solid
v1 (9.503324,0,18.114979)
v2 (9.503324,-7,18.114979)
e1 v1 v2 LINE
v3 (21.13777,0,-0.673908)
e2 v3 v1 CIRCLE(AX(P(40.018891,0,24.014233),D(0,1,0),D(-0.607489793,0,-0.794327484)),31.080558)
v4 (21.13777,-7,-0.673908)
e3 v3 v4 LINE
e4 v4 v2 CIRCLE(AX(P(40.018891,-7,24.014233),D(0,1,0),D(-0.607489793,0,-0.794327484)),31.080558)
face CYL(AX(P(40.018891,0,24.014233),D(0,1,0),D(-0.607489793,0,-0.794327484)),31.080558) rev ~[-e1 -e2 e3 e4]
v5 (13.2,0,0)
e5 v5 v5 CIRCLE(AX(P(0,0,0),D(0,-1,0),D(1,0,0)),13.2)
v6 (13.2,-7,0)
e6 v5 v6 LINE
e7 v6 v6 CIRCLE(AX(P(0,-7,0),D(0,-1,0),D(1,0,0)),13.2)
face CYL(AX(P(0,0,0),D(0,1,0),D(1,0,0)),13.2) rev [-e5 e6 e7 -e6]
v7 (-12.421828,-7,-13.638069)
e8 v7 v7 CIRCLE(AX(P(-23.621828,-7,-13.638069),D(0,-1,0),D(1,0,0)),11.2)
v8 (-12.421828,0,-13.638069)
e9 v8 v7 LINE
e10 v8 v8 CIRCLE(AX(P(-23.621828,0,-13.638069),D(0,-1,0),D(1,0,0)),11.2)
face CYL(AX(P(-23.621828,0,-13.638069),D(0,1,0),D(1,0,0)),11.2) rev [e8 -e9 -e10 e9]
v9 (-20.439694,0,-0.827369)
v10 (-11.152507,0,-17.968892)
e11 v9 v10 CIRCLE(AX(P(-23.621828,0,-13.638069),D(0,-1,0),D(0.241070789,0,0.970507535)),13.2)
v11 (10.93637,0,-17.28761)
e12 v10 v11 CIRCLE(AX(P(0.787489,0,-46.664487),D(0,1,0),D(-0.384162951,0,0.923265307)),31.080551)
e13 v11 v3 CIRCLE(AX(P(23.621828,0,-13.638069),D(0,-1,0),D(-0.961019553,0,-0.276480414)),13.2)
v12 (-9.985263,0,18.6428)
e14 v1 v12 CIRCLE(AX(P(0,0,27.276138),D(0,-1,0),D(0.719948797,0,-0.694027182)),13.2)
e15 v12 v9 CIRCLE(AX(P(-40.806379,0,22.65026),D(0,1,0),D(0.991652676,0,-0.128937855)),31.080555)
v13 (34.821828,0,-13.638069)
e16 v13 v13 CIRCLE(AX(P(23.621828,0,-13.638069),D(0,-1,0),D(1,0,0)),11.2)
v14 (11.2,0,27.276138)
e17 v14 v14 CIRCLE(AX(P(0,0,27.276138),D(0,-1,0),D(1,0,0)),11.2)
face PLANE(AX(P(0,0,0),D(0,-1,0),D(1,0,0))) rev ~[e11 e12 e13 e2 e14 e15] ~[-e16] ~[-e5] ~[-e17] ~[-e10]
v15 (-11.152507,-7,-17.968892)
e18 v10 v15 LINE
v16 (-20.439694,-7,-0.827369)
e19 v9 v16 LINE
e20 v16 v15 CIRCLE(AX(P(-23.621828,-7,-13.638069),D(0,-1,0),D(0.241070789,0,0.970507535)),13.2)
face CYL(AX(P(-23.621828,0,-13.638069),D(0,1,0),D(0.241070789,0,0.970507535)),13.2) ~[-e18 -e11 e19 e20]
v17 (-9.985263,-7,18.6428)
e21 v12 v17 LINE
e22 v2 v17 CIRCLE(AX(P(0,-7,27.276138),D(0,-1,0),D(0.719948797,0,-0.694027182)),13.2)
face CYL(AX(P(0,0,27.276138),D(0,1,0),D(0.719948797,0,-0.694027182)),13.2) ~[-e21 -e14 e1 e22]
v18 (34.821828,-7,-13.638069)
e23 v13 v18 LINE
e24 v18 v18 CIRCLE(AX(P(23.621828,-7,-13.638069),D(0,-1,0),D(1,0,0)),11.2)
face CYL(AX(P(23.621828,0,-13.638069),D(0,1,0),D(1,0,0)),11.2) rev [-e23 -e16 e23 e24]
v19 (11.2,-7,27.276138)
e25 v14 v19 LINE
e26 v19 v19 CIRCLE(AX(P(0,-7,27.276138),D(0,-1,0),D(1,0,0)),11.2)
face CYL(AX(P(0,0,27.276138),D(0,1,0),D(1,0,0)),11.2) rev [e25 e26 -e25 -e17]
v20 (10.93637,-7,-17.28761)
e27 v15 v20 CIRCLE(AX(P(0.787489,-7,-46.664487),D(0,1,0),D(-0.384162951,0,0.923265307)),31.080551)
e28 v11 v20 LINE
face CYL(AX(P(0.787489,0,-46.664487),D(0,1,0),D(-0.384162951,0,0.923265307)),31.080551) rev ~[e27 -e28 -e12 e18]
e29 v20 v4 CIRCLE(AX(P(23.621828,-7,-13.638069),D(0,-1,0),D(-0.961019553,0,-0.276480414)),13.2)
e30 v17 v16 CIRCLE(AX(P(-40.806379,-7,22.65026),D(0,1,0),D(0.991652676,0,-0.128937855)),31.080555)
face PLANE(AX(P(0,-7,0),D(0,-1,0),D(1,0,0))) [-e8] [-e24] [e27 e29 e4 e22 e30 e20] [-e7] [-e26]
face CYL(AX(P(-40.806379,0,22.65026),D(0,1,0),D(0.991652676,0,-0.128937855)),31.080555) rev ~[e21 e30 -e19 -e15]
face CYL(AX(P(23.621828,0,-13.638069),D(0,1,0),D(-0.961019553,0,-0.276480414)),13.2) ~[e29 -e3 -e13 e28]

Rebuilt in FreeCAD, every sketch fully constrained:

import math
import FreeCAD as App
import Part
import Sketcher
Q = App.Units.Quantity

doc = App.newDocument("Part")
body = doc.addObject("PartDesign::Body", "Body")

sketch1 = doc.addObject("Sketcher::SketchObject", "Sketch")
body.addObject(sketch1)
sketch1.AttachmentSupport = (doc.XZ_Plane, [""])
sketch1.MapMode = "FlatFace"
sketch1.addGeometry([
    Part.ArcOfCircle(Part.Circle(App.Vector(40, 24, 0), App.Vector(0, 0, 1), 31), math.radians(-169), math.radians(-127)),
    Part.ArcOfCircle(Part.Circle(App.Vector(0, 27, 0), App.Vector(0, 0, 1), 13), math.radians(-44), math.radians(221)),
    Part.ArcOfCircle(Part.Circle(App.Vector(-41, 23, 0), App.Vector(0, 0, 1), 31), math.radians(-49), math.radians(-7)),
    Part.ArcOfCircle(Part.Circle(App.Vector(-24, -14, 0), App.Vector(0, 0, 1), 13), math.radians(76), math.radians(341)),
    Part.ArcOfCircle(Part.Circle(App.Vector(1, -47, 0), App.Vector(0, 0, 1), 31), math.radians(71), math.radians(113)),
    Part.ArcOfCircle(Part.Circle(App.Vector(24, -14, 0), App.Vector(0, 0, 1), 13), math.radians(-164), math.radians(101)),
    Part.Circle(App.Vector(-24, -14, 0), App.Vector(0, 0, 1), 11),
    Part.Circle(App.Vector(24, -14, 0), App.Vector(0, 0, 1), 11),
    Part.Circle(App.Vector(0, 0, 0), App.Vector(0, 0, 1), 13),
    Part.Circle(App.Vector(0, 27, 0), App.Vector(0, 0, 1), 11),
], False)
sketch1.addConstraint([
    Sketcher.Constraint("Coincident", 0, 1, 1, 1),
    Sketcher.Constraint("Coincident", 1, 2, 2, 2),
    Sketcher.Constraint("Coincident", 2, 1, 3, 1),
    Sketcher.Constraint("Coincident", 3, 2, 4, 2),
    Sketcher.Constraint("Coincident", 4, 1, 5, 1),
    Sketcher.Constraint("Coincident", 5, 2, 0, 2),
    Sketcher.Constraint("Coincident", 8, 3, -1, 1),
    Sketcher.Constraint("Coincident", 6, 3, 3, 3),
    Sketcher.Constraint("Coincident", 7, 3, 5, 3),
    Sketcher.Constraint("Coincident", 9, 3, 1, 3),
    Sketcher.Constraint("Equal", 1, 3),
    Sketcher.Constraint("Equal", 3, 5),
    Sketcher.Constraint("Equal", 6, 7),
    Sketcher.Constraint("Equal", 5, 8),
    Sketcher.Constraint("Equal", 7, 9),
    Sketcher.Constraint("Symmetric", 3, 3, 5, 3, -2),
    Sketcher.Constraint("PointOnObject", 1, 3, -2),
    Sketcher.Constraint("Diameter", 6, Q("22.4 mm")),
    Sketcher.Constraint("Diameter", 8, Q("26.4 mm")),
    Sketcher.Constraint("Radius", 4, Q("31.080551 mm")),
    Sketcher.Constraint("Radius", 0, Q("31.080558 mm")),
    Sketcher.Constraint("Radius", 2, Q("31.080555 mm")),
    Sketcher.Constraint("DistanceY", -1, 1, 1, 2, Q("18.6428 mm")),
    Sketcher.Constraint("DistanceY", 3, 3, 0, 3, Q("37.652302 mm")),
    Sketcher.Constraint("DistanceY", 3, 3, 2, 1, Q("12.8107 mm")),
    Sketcher.Constraint("DistanceX", 4, 1, 5, 2, Q("10.2014 mm")),
    Sketcher.Constraint("DistanceY", 4, 1, 5, 2, Q("16.613702 mm")),
    Sketcher.Constraint("DistanceX", -1, 1, 0, 3, Q("40.018891 mm")),
    Sketcher.Constraint("DistanceX", 2, 3, -1, 1, Q("40.806379 mm")),
    Sketcher.Constraint("DistanceY", -1, 1, 2, 3, Q("22.65026 mm")),
    Sketcher.Constraint("DistanceX", -1, 1, 4, 3, Q("0.787489 mm")),
])
pad1 = doc.addObject("PartDesign::Pad", "Pad")
body.addObject(pad1)
pad1.Profile = sketch1
pad1.Length = 7

doc.recompute()
